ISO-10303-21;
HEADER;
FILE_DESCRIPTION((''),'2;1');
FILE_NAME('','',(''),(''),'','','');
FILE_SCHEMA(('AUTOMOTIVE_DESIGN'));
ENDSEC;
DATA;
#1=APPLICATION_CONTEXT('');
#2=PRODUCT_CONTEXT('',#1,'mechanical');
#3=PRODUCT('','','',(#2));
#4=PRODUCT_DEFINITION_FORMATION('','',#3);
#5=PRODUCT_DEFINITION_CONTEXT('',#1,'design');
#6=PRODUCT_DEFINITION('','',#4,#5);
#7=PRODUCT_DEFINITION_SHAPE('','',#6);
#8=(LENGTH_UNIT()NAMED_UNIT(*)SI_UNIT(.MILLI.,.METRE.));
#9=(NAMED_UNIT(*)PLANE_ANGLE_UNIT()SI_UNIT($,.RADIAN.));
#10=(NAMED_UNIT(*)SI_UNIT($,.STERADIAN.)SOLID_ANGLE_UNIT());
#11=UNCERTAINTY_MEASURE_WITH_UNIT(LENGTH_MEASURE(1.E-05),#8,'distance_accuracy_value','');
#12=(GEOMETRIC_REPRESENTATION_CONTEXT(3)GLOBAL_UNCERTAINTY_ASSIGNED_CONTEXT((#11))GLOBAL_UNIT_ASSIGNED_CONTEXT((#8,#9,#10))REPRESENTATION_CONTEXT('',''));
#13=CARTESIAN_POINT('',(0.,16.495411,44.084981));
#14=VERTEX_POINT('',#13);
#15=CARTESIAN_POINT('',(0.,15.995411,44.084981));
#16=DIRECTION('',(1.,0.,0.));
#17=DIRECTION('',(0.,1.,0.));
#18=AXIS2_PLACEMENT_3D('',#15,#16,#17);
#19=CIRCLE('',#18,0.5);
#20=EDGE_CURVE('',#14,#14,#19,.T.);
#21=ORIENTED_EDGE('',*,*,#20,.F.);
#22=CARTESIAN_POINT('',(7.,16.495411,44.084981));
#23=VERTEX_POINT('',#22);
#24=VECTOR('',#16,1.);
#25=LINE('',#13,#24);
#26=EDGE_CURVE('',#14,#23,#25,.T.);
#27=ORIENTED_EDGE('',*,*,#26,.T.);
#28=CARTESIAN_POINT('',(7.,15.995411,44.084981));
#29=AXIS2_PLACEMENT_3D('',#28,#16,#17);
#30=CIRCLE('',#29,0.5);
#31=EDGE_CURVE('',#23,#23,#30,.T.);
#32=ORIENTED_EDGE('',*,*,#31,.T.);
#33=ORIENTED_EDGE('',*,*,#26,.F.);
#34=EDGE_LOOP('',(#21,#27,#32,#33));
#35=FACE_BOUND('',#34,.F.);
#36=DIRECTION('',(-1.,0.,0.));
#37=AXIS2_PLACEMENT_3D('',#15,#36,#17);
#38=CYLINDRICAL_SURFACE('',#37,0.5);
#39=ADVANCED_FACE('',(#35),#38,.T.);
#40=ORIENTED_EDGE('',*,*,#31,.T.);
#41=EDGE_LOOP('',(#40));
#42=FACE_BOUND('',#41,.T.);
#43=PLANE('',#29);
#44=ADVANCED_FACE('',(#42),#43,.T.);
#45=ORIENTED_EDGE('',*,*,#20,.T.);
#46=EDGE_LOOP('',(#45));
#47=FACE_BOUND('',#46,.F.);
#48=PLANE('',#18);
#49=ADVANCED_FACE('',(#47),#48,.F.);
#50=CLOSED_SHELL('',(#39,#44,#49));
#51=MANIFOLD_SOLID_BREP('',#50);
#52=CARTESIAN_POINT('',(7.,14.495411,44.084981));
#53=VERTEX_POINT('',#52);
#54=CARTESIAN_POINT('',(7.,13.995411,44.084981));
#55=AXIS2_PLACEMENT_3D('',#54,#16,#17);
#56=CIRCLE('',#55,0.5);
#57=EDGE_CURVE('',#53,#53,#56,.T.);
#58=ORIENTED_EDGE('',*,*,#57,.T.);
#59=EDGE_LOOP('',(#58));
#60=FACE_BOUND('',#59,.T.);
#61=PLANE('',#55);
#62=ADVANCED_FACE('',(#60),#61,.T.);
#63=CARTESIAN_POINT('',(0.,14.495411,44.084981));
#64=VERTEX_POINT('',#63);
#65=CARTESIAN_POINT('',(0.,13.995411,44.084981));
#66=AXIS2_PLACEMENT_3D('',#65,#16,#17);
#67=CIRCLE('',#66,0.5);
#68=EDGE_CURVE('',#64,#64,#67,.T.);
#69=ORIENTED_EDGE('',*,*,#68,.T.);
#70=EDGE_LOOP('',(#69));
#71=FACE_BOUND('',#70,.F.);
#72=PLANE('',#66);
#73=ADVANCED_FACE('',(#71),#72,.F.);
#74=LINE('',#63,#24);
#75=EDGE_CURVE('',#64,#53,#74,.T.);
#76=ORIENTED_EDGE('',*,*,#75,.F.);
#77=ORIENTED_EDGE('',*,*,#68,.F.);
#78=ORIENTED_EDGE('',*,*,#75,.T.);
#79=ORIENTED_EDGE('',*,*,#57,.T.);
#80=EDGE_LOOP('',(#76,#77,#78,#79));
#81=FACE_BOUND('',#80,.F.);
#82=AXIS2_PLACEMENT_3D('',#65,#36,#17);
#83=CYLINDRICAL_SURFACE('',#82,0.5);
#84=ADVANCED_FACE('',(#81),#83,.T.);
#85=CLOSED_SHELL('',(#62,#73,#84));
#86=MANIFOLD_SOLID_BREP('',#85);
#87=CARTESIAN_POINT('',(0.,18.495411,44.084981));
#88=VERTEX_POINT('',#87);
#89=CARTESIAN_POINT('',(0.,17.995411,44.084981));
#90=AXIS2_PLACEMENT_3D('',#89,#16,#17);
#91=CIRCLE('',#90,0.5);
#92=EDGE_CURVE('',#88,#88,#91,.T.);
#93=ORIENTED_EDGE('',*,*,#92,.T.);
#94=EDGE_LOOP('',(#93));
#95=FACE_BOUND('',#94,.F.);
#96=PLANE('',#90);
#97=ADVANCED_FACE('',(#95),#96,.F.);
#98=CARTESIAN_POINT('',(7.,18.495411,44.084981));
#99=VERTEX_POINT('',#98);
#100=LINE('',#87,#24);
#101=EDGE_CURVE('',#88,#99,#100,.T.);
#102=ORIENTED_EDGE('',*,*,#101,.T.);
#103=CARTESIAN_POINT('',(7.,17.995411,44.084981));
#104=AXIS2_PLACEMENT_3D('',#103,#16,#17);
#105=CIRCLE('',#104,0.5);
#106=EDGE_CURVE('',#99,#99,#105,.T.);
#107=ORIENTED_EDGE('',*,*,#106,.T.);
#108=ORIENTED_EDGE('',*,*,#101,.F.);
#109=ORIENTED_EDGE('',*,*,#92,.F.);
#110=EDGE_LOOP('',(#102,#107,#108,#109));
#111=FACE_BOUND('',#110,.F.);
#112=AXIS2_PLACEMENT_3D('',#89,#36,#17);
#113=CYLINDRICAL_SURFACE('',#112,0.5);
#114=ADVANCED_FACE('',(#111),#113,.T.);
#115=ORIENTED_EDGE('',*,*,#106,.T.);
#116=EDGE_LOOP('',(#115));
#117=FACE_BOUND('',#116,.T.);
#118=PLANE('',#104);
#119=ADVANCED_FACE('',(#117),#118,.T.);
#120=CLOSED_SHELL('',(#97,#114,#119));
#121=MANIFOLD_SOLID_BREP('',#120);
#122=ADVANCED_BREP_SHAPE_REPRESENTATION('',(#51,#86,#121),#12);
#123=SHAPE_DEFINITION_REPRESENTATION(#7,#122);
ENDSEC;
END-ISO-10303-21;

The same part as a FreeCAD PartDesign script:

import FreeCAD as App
import Part
import Sketcher

doc = App.newDocument("Part")
body = doc.addObject("PartDesign::Body", "Body")
body.AllowCompound = True

# Sketch on YZ plane
sketch1 = doc.addObject("Sketcher::SketchObject", "Sketch")
body.addObject(sketch1)
sketch1.AttachmentSupport = (doc.YZ_Plane, [""])
sketch1.MapMode = "FlatFace"
sketch1.addGeometry(Part.Circle(App.Vector(18, 44.1, 0), App.Vector(0, 0, 1), 0.5), False)
sketch1.addGeometry(Part.Circle(App.Vector(16, 44.1, 0), App.Vector(0, 0, 1), 0.5), False)
sketch1.addGeometry(Part.Circle(App.Vector(14, 44.1, 0), App.Vector(0, 0, 1), 0.5), False)
sketch1.addConstraint(Sketcher.Constraint("Equal", 0, 1))
sketch1.addConstraint(Sketcher.Constraint("Equal", 1, 2))
sketch1.addConstraint(Sketcher.Constraint("Horizontal", 0, 3, 1, 3))
sketch1.addConstraint(Sketcher.Constraint("Horizontal", 1, 3, 2, 3))
sketch1.addConstraint(Sketcher.Constraint("Diameter", 0, 1.0))
sketch1.addConstraint(Sketcher.Constraint("DistanceX", 1, 3, 0, 3, 2.0))
sketch1.addConstraint(Sketcher.Constraint("DistanceX", 2, 3, 1, 3, 2.0))
sketch1.addConstraint(Sketcher.Constraint("DistanceX", -1, 1, 0, 3, 17.995411))
sketch1.addConstraint(Sketcher.Constraint("DistanceY", -1, 1, 0, 3, 44.084981))
pad1 = doc.addObject("PartDesign::Pad", "Pad")
body.addObject(pad1)
pad1.Profile = sketch1
pad1.Length = 7

doc.recompute()
